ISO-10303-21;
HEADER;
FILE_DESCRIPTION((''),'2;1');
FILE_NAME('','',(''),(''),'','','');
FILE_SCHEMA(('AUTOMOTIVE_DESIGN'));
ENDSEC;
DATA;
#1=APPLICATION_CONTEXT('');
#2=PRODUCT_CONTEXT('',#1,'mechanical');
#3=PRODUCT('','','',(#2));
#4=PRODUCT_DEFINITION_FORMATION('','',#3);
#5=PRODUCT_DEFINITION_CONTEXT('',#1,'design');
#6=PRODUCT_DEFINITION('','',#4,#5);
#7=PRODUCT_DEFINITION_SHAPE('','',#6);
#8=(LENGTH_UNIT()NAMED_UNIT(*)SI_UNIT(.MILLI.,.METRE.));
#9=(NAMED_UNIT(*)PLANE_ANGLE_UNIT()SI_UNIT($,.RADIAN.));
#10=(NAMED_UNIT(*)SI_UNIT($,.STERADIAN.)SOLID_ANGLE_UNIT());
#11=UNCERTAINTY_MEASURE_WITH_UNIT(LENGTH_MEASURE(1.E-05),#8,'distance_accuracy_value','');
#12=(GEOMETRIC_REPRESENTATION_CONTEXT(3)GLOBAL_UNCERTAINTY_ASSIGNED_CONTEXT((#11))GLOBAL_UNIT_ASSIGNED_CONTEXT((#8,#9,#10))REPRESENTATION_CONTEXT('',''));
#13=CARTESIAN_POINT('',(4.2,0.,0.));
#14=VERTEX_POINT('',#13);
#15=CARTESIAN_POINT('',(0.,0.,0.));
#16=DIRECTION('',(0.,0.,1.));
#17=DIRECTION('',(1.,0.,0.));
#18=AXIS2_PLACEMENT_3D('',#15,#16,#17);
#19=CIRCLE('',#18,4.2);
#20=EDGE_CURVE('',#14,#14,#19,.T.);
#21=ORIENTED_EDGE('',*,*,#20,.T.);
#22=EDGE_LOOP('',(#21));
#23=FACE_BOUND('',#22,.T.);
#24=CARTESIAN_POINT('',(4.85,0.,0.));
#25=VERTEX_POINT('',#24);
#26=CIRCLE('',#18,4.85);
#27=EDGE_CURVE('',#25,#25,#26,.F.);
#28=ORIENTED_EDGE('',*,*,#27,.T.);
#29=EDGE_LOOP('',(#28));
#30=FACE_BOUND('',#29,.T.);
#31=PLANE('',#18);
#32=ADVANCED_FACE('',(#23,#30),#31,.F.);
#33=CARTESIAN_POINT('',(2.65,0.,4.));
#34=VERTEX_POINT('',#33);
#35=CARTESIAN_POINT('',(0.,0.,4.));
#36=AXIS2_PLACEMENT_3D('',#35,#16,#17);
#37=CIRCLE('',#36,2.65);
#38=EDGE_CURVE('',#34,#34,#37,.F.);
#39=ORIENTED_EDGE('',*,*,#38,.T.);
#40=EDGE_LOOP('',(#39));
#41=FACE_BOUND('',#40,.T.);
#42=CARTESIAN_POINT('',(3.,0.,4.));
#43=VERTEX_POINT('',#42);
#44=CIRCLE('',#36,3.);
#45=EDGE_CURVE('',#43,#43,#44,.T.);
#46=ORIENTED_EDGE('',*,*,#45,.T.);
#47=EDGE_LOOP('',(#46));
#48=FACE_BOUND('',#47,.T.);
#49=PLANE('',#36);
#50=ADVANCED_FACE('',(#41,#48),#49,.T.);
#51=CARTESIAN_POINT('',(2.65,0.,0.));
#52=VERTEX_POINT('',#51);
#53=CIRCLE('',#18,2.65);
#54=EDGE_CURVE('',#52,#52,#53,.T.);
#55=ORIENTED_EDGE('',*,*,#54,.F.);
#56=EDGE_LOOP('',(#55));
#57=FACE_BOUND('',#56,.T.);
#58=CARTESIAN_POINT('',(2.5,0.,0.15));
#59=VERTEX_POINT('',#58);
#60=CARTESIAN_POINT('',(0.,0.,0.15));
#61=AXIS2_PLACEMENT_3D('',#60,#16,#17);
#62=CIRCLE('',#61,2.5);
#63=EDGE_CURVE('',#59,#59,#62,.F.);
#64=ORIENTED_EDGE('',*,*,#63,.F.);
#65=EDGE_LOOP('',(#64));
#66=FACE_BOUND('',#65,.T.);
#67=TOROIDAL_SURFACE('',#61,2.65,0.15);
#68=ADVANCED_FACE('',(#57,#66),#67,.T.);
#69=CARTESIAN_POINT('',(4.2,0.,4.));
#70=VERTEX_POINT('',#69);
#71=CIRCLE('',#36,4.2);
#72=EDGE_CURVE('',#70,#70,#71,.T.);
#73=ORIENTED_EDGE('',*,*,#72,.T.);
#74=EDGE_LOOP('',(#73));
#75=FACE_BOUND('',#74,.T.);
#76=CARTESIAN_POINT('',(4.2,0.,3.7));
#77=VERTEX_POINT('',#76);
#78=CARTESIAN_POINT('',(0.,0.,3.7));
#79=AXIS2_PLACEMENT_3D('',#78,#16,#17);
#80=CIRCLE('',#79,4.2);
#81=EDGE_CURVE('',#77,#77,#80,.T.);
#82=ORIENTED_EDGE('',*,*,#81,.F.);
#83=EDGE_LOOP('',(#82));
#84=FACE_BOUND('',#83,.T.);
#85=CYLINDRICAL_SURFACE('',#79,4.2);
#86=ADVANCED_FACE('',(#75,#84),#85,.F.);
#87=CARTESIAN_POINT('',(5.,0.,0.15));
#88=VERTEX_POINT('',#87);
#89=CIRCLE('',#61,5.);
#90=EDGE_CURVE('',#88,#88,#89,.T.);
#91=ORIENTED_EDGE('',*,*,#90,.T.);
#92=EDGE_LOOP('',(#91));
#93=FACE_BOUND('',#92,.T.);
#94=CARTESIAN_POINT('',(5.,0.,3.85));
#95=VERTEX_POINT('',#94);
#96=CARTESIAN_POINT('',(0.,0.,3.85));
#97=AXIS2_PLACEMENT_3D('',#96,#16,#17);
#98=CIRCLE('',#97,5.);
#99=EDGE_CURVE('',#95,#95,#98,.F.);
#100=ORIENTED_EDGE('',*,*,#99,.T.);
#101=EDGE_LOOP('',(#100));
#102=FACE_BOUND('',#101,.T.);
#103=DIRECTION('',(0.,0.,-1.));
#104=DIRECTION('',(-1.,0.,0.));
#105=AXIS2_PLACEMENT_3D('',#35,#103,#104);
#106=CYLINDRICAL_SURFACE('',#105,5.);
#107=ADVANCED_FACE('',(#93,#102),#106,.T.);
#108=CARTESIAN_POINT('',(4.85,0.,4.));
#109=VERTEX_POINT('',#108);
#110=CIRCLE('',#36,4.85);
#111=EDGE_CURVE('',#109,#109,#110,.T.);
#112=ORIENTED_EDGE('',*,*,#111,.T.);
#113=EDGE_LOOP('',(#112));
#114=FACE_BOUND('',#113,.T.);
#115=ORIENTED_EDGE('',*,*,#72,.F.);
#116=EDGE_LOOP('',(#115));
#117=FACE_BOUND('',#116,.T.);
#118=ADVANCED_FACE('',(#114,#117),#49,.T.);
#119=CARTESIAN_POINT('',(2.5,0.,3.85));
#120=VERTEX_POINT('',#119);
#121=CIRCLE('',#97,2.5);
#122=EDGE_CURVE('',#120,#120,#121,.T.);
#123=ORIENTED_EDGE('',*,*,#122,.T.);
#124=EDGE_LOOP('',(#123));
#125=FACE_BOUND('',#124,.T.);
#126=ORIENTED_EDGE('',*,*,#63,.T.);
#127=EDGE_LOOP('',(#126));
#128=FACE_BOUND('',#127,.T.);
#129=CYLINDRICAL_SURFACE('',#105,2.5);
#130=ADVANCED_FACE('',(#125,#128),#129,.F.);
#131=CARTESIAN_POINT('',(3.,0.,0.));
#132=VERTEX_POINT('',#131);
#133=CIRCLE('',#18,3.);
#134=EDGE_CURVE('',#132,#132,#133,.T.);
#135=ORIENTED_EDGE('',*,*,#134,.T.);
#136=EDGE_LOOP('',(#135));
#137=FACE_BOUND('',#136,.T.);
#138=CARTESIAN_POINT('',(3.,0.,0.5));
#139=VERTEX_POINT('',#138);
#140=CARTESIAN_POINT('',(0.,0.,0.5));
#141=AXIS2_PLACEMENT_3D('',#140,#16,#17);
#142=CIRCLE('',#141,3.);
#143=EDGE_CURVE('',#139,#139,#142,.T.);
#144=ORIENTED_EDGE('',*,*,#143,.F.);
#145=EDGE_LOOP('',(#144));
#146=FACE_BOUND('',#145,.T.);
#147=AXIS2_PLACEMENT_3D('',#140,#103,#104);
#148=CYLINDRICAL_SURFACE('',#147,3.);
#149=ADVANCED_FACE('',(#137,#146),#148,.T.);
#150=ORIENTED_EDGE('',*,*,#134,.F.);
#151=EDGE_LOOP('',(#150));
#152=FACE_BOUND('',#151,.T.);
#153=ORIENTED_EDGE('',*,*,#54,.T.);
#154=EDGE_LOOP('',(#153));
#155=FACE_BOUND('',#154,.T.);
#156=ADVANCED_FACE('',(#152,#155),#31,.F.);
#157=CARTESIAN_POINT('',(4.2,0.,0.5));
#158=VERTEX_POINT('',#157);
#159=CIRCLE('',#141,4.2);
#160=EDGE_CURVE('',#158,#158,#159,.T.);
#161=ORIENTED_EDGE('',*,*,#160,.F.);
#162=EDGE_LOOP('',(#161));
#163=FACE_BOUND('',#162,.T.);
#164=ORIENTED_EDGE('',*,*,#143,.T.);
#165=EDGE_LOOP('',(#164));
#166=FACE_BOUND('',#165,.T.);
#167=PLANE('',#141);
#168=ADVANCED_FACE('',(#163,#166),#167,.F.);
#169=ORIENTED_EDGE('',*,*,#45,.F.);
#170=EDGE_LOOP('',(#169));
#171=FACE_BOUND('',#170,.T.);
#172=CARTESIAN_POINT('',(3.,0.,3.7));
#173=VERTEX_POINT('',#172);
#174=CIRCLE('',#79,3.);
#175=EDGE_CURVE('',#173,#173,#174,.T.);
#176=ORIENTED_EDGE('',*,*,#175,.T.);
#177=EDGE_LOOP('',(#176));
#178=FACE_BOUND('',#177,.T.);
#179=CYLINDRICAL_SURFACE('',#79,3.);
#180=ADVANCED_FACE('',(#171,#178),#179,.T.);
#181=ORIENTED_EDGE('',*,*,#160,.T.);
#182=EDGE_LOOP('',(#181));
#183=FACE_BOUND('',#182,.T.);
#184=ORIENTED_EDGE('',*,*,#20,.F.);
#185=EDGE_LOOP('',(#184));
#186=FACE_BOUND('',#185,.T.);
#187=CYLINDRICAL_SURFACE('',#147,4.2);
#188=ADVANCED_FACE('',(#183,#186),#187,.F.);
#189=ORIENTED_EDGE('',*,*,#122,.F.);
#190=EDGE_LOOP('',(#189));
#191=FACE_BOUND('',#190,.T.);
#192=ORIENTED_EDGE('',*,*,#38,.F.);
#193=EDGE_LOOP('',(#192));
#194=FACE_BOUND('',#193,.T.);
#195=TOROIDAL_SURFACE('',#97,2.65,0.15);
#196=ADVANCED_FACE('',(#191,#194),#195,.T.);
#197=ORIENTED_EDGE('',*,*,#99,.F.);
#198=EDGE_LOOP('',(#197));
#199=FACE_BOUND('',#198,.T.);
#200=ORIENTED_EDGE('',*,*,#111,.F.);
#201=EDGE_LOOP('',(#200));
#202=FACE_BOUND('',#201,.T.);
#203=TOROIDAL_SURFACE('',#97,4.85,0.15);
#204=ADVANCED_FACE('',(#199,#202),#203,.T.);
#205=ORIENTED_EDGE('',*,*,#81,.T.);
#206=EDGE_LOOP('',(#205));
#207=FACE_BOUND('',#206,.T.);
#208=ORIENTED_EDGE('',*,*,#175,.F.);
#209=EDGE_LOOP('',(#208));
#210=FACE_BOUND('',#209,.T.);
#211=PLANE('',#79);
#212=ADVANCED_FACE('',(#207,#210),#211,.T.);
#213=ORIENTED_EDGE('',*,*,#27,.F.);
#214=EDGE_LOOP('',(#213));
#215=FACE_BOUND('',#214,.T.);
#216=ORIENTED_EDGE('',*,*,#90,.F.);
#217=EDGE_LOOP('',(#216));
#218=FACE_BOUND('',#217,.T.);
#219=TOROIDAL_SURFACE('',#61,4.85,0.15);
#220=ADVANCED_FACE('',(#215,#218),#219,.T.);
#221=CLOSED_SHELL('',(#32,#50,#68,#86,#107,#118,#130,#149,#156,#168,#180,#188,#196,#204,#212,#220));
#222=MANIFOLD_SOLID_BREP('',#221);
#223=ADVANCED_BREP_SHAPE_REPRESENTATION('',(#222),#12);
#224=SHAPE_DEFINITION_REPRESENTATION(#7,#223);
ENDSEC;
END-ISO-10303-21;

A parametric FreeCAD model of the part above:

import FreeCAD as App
import Part
import Sketcher


def edges_at(feature, points):
    """Names of the edges that pass closest to the given points."""
    edges = feature.Shape.Edges
    near = lambda p: min(range(len(edges)), key=lambda i: edges[i].distToShape(Part.Vertex(*p))[0])
    return sorted({f"Edge{near(p) + 1}" for p in points})

doc = App.newDocument("Part")
params = doc.addObject("Spreadsheet::Sheet", "Params")
for row, (alias, value) in enumerate([
    ("sketch1_diameter", "10 mm"),
    ("sketch1_diameter2", "5 mm"),
    ("pad1_length", "4 mm"),
    ("sketch2_diameter", "6 mm"),
    ("sketch2_diameter2", "8.4 mm"),
    ("pocket1_length", "0.3 mm"),
    ("sketch3_diameter", "6 mm"),
    ("sketch3_diameter2", "8.4 mm"),
    ("pocket2_length", "0.5 mm"),
    ("fillet_radius", "0.15 mm"),
], start=1):
    params.set(f"A{row}", alias)
    params.set(f"B{row}", "=" + value)
    params.setAlias(f"B{row}", alias)

body = doc.addObject("PartDesign::Body", "Body")

sketch1 = doc.addObject("Sketcher::SketchObject", "Sketch")
body.addObject(sketch1)
sketch1.AttachmentSupport = (doc.XY_Plane, [""])
sketch1.MapMode = "FlatFace"
sketch1.addGeometry(Part.Circle(App.Vector(0, 0, 0), App.Vector(0, 0, 1), 5), False)
sketch1.addGeometry(Part.Circle(App.Vector(0, 0, 0), App.Vector(0, 0, 1), 2.5), False)
sketch1.addConstraint(Sketcher.Constraint("Coincident", 0, 3, -1, 1))
sketch1.addConstraint(Sketcher.Constraint("Coincident", 1, 3, -1, 1))
sketch1.addConstraint(Sketcher.Constraint("Diameter", 0, 10.0))
sketch1.addConstraint(Sketcher.Constraint("Diameter", 1, 5.0))
sketch1.setExpression("Constraints[2]", "Params.sketch1_diameter")
sketch1.setExpression("Constraints[3]", "Params.sketch1_diameter2")
pad1 = doc.addObject("PartDesign::Pad", "Pad")
body.addObject(pad1)
pad1.Profile = sketch1
pad1.setExpression("Length", "Params.pad1_length")

sketch2 = doc.addObject("Sketcher::SketchObject", "Sketch001")
body.addObject(sketch2)
sketch2.AttachmentSupport = (doc.XY_Plane, [""])
sketch2.MapMode = "FlatFace"
sketch2.AttachmentOffset = App.Placement(App.Vector(0, 0, 4), App.Rotation())
sketch2.addGeometry(Part.Circle(App.Vector(0, 0, 0), App.Vector(0, 0, 1), 4.2), False)
sketch2.addGeometry(Part.Circle(App.Vector(0, 0, 0), App.Vector(0, 0, 1), 3), False)
sketch2.addConstraint(Sketcher.Constraint("Coincident", 0, 3, -1, 1))
sketch2.addConstraint(Sketcher.Constraint("Coincident", 1, 3, -1, 1))
sketch2.addConstraint(Sketcher.Constraint("Diameter", 1, 6.0))
sketch2.addConstraint(Sketcher.Constraint("Diameter", 0, 8.4))
sketch2.setExpression("Constraints[2]", "Params.sketch2_diameter")
sketch2.setExpression("Constraints[3]", "Params.sketch2_diameter2")
pocket1 = doc.addObject("PartDesign::Pocket", "Pocket")
body.addObject(pocket1)
pocket1.Profile = sketch2
pocket1.setExpression("Length", "Params.pocket1_length")

sketch3 = doc.addObject("Sketcher::SketchObject", "Sketch002")
body.addObject(sketch3)
sketch3.AttachmentSupport = (doc.XY_Plane, [""])
sketch3.MapMode = "FlatFace"
sketch3.AttachmentOffset = App.Placement(App.Vector(0, 0, 0.5), App.Rotation())
sketch3.addGeometry(Part.Circle(App.Vector(0, 0, 0), App.Vector(0, 0, 1), 4.2), False)
sketch3.addGeometry(Part.Circle(App.Vector(0, 0, 0), App.Vector(0, 0, 1), 3), False)
sketch3.addConstraint(Sketcher.Constraint("Coincident", 0, 3, -1, 1))
sketch3.addConstraint(Sketcher.Constraint("Coincident", 1, 3, -1, 1))
sketch3.addConstraint(Sketcher.Constraint("Diameter", 1, 6.0))
sketch3.addConstraint(Sketcher.Constraint("Diameter", 0, 8.4))
sketch3.setExpression("Constraints[2]", "Params.sketch3_diameter")
sketch3.setExpression("Constraints[3]", "Params.sketch3_diameter2")
pocket2 = doc.addObject("PartDesign::Pocket", "Pocket001")
body.addObject(pocket2)
pocket2.Profile = sketch3
pocket2.setExpression("Length", "Params.pocket2_length")
doc.recompute()

fillet = doc.addObject("PartDesign::Fillet", "Fillet")
body.addObject(fillet)
fillet.Base = (pocket2, edges_at(pocket2, [
    (-5, 0, 0),
    (-5, 0, 4),
    (-2.5, 0, 0),
    (-2.5, 0, 4),
]))
fillet.setExpression("Radius", "Params.fillet_radius")

doc.recompute()
